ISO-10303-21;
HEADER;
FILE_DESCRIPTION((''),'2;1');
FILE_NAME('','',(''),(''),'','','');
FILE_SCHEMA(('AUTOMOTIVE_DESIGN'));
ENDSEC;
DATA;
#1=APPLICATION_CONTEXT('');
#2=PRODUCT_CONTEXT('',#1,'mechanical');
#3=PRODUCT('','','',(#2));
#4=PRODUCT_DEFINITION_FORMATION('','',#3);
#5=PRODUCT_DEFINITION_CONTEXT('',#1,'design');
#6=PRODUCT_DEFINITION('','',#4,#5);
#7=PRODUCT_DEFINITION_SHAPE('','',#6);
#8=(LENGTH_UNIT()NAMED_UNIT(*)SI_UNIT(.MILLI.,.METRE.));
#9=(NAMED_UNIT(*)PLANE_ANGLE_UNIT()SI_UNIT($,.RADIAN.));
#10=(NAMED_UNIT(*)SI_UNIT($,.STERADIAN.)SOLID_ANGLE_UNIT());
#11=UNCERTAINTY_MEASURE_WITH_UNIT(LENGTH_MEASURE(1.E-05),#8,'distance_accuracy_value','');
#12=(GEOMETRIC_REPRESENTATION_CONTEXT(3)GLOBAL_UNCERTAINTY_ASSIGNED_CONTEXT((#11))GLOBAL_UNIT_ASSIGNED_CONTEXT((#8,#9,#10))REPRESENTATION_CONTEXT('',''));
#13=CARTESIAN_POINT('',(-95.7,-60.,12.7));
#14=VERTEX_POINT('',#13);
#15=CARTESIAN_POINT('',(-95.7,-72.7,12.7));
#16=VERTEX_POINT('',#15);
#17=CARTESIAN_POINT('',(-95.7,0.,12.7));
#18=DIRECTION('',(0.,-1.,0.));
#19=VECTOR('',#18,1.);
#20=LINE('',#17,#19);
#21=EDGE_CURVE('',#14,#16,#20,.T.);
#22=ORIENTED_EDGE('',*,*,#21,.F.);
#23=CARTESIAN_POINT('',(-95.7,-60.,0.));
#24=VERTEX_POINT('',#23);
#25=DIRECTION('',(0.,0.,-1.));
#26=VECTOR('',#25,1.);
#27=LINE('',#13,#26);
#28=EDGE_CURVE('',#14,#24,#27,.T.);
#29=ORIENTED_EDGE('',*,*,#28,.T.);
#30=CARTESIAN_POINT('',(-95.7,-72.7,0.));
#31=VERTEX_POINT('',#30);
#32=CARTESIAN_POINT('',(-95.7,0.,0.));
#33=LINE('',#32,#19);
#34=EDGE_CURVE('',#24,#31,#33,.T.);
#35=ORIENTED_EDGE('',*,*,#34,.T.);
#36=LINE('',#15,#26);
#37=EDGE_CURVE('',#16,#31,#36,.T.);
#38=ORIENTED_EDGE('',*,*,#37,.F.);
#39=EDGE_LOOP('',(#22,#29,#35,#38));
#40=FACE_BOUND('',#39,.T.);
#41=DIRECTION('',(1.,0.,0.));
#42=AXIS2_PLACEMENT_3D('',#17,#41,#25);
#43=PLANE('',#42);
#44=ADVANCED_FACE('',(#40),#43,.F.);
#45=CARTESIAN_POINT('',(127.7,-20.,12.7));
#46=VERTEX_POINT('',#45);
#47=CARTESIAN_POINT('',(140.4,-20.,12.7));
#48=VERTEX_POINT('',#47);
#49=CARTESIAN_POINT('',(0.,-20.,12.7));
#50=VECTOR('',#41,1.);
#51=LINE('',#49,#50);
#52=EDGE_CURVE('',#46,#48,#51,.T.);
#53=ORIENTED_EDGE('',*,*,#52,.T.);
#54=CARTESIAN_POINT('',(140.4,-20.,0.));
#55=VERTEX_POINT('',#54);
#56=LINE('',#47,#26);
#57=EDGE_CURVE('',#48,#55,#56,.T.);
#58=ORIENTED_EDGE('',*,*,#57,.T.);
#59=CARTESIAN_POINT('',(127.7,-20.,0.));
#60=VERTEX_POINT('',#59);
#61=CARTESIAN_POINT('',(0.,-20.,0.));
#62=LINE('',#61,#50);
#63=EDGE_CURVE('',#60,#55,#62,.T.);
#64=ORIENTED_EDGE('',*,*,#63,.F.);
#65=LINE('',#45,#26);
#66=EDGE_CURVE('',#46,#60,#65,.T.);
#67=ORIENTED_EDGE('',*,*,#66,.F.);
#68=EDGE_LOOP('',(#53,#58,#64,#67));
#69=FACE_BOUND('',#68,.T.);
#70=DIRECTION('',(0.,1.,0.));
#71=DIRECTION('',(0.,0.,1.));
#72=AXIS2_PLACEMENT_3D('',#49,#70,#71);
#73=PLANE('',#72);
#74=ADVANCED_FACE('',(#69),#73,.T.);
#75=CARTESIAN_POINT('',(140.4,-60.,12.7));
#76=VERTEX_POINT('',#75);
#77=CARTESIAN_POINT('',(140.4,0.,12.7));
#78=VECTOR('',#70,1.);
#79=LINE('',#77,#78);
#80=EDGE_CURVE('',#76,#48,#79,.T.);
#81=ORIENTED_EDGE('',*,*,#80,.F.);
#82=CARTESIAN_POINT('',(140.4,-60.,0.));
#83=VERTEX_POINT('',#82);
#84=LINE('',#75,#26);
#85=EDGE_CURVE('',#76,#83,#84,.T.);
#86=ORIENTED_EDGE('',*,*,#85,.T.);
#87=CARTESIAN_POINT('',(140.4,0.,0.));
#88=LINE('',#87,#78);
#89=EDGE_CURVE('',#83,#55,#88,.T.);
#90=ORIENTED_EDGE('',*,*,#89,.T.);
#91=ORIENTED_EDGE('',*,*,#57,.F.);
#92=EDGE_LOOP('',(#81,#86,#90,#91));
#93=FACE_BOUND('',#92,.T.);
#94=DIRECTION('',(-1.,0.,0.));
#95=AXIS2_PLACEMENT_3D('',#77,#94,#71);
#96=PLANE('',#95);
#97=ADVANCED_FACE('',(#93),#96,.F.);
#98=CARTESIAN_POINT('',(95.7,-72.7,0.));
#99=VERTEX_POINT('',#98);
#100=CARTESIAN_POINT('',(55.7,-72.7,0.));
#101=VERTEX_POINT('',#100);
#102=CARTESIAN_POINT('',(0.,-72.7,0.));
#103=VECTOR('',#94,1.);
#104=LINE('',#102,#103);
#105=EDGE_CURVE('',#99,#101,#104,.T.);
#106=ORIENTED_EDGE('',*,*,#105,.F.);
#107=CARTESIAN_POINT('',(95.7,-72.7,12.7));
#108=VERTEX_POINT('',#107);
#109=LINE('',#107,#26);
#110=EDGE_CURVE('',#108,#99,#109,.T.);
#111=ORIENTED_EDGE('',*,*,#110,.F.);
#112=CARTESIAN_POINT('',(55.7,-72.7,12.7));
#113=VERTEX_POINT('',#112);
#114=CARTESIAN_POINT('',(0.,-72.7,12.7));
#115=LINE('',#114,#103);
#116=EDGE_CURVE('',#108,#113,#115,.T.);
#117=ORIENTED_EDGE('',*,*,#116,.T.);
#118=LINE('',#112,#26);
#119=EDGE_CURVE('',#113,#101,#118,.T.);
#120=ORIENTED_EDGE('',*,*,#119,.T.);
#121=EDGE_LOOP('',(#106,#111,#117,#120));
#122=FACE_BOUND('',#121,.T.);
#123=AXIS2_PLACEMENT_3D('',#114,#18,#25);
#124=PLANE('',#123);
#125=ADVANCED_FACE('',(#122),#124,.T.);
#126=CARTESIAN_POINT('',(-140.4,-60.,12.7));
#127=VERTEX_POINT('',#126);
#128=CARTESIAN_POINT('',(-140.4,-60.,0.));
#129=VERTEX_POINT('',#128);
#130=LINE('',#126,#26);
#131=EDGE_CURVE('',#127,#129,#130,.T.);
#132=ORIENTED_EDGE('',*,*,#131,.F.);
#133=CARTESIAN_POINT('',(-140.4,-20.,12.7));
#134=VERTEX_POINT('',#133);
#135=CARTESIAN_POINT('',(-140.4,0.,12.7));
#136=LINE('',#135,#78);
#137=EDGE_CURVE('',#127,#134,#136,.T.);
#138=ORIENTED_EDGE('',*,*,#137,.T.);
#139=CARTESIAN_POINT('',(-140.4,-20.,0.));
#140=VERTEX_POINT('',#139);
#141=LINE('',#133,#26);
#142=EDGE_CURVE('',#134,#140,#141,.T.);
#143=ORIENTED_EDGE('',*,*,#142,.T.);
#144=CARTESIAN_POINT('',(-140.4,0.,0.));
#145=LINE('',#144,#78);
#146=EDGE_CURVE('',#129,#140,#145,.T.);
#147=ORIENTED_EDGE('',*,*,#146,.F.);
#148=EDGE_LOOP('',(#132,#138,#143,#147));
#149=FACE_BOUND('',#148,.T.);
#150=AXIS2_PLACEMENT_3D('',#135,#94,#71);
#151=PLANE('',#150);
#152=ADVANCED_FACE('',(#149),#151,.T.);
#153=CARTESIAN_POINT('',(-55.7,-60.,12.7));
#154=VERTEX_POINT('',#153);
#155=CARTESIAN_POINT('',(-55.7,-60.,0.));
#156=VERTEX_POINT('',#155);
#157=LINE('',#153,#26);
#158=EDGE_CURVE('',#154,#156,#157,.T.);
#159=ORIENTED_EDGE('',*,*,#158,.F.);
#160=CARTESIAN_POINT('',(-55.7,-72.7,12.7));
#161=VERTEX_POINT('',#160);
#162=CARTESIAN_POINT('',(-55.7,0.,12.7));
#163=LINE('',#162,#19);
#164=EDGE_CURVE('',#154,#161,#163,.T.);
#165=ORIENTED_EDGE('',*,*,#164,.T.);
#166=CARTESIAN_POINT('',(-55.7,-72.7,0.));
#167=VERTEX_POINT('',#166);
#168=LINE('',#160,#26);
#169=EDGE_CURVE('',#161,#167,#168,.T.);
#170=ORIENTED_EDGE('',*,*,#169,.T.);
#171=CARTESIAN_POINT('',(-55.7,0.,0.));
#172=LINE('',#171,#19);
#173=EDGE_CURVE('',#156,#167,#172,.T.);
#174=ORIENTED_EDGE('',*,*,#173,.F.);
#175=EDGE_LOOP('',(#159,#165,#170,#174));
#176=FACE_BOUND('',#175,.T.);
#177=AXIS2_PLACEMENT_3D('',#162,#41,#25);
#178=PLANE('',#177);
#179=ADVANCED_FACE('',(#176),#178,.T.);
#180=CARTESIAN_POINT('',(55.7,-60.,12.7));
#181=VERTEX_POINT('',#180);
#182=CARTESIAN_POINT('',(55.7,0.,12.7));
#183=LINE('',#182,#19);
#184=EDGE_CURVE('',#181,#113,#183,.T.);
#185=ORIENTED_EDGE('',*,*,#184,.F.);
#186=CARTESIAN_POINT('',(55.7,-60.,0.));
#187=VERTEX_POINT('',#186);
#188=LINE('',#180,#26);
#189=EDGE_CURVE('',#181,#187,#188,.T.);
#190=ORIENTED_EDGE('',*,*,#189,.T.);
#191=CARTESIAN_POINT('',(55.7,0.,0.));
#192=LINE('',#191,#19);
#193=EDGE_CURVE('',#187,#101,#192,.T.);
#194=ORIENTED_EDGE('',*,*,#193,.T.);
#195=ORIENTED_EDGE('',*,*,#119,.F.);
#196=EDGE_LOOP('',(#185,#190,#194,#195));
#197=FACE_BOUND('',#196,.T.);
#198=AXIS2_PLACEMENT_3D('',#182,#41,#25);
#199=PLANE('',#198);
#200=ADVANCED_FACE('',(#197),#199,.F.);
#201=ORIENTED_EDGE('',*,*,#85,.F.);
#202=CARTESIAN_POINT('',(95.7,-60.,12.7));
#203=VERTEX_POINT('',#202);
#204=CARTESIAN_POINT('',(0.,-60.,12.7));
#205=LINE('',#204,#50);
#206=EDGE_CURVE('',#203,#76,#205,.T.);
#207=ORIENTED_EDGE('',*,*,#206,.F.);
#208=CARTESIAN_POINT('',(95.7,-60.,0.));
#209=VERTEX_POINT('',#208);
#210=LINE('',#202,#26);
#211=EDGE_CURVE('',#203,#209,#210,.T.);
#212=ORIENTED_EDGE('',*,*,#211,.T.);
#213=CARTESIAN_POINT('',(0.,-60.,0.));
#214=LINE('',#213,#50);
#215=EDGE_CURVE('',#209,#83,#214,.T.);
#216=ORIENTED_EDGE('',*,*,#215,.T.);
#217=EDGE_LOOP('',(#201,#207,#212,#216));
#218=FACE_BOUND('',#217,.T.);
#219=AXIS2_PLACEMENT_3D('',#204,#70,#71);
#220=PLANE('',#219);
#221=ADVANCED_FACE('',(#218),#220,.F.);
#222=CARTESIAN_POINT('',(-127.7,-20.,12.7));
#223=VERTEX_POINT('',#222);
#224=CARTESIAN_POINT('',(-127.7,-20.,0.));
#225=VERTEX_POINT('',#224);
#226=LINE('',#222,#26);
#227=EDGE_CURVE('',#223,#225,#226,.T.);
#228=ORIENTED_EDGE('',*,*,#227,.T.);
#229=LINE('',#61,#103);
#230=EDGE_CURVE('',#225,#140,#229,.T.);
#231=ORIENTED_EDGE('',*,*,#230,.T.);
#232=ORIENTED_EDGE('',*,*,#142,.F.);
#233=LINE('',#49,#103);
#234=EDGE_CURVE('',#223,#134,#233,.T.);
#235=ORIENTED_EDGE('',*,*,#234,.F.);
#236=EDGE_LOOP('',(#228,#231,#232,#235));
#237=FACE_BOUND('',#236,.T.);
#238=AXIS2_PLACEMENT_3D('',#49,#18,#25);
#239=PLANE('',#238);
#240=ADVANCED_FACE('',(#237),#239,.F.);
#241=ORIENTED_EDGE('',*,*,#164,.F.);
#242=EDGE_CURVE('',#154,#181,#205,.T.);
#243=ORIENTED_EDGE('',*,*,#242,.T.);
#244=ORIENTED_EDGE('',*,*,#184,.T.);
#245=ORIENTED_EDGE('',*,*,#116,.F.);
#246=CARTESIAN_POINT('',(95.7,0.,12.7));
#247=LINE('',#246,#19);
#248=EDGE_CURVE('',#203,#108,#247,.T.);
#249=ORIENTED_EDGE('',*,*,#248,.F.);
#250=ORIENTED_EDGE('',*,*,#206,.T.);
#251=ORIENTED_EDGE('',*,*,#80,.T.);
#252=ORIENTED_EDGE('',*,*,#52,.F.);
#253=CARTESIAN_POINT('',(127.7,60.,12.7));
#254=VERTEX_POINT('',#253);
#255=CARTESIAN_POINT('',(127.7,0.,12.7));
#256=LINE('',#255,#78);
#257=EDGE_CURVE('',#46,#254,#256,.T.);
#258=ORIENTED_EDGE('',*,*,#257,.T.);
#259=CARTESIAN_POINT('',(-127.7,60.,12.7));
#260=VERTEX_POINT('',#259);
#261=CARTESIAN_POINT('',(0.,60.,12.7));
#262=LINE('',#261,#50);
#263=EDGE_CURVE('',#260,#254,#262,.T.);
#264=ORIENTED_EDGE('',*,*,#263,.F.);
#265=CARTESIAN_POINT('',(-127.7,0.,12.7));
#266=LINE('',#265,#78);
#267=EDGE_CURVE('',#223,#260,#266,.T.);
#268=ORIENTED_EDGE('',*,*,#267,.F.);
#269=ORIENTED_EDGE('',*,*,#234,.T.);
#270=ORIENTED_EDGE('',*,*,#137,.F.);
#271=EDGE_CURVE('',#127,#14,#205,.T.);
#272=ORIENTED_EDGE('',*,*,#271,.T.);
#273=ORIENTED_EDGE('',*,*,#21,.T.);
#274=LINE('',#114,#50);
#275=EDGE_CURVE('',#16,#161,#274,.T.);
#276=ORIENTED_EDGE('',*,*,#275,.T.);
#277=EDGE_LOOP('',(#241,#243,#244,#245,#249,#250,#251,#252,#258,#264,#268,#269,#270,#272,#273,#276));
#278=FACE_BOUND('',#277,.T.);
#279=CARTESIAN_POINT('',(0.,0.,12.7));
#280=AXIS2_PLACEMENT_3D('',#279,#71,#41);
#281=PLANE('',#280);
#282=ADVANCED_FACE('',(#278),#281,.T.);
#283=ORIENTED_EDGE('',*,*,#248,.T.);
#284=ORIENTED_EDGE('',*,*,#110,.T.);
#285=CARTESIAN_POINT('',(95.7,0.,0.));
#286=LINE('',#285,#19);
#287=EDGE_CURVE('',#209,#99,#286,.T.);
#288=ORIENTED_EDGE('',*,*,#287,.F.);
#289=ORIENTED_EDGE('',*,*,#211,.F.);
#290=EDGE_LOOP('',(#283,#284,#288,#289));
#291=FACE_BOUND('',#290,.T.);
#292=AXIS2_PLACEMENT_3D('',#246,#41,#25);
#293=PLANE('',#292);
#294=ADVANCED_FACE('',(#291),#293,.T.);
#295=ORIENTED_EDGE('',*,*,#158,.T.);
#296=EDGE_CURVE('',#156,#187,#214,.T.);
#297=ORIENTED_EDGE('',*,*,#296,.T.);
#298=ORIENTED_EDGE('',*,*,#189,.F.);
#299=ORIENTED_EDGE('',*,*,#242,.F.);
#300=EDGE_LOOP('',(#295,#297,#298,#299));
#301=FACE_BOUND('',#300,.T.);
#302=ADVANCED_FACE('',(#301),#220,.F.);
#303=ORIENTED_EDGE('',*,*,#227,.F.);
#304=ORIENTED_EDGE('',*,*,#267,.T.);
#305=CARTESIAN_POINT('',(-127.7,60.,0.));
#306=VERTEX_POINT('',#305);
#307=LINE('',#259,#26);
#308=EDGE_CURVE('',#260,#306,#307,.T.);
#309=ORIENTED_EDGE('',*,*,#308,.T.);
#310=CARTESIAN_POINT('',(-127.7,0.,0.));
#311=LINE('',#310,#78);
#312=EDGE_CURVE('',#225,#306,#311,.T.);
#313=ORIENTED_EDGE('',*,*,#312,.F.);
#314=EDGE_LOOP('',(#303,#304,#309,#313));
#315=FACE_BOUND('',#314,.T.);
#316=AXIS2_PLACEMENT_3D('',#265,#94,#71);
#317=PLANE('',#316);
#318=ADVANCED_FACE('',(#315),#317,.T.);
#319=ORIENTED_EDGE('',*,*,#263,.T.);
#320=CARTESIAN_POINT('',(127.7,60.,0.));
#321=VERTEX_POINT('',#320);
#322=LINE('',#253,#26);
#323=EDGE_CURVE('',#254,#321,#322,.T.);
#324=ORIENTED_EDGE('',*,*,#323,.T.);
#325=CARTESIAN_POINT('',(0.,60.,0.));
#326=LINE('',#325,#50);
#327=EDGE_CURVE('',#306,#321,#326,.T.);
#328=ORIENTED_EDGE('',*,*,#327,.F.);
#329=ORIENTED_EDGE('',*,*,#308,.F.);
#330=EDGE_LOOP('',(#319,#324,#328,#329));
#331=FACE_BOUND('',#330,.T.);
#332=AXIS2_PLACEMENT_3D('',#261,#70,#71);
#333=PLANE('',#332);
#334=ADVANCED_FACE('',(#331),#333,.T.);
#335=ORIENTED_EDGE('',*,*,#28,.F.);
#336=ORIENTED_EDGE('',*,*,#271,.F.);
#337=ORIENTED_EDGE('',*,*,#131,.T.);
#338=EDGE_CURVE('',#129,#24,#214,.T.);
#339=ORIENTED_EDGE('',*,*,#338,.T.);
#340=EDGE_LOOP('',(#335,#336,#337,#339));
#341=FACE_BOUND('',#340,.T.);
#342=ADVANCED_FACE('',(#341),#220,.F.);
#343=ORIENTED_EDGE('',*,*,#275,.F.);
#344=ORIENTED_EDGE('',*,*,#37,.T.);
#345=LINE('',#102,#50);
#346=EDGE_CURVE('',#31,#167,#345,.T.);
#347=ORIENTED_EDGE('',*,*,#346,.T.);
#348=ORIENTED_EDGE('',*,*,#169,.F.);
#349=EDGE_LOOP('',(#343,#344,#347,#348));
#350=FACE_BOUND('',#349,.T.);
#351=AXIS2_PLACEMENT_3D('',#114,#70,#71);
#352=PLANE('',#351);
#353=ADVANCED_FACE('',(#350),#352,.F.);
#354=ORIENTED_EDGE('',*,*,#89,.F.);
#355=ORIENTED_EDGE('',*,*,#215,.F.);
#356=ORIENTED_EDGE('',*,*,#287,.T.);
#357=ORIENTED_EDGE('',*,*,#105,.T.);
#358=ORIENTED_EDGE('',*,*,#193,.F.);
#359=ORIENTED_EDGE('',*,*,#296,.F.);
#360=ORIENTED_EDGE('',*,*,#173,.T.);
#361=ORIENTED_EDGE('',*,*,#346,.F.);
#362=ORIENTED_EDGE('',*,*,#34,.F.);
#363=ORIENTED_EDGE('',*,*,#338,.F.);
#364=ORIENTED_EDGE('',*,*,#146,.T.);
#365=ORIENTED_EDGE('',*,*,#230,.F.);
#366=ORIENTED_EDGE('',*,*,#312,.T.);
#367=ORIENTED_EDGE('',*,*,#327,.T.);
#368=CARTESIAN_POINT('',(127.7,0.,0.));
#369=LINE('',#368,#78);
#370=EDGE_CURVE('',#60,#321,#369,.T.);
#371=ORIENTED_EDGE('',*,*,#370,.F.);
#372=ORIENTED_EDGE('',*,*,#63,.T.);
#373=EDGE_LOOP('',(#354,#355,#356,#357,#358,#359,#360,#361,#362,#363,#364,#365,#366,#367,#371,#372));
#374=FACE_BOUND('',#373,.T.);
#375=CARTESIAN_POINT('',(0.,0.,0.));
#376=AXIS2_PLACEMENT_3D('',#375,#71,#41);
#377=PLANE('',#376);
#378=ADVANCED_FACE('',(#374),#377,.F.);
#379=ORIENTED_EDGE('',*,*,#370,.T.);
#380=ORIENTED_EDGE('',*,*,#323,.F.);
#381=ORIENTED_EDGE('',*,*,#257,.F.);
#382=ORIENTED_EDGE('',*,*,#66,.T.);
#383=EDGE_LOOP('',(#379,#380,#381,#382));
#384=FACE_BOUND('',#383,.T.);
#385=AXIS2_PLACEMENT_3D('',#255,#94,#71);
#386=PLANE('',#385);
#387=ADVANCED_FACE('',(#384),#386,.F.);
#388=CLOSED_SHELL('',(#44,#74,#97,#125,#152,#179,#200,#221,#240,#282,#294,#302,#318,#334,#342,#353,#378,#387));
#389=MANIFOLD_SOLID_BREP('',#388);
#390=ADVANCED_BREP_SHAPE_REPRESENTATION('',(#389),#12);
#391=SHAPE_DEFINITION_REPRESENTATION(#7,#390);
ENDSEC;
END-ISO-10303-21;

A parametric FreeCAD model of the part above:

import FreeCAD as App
import Part
import Sketcher
Q = App.Units.Quantity

doc = App.newDocument("Part")
params = doc.addObject("Spreadsheet::Sheet", "Params")
for row, (alias, value) in enumerate([
    ("sketch1_width", "40 mm"),
    ("sketch1_height", "80 mm"),
    ("sketch1_width2", "12.7 mm"),
    ("sketch1_width3", "44.7 mm"),
    ("sketch1_width4", "111.4 mm"),
    ("pad1_length", "12.7 mm"),
], start=1):
    params.set(f"A{row}", alias)
    params.set(f"B{row}", "=" + value)
    params.setAlias(f"B{row}", alias)

body = doc.addObject("PartDesign::Body", "Body")

# Sketch on XY plane
sketch1 = doc.addObject("Sketcher::SketchObject", "Sketch")
body.addObject(sketch1)
sketch1.AttachmentSupport = (doc.XY_Plane, [""])
sketch1.MapMode = "FlatFace"
sketch1.addGeometry([
    Part.LineSegment(App.Vector(-128, 60, 0), App.Vector(-128, -20, 0)),  # 0
    Part.LineSegment(App.Vector(-128, -20, 0), App.Vector(-140, -20, 0)),  # 1
    Part.LineSegment(App.Vector(-140, -20, 0), App.Vector(-140, -60, 0)),  # 2
    Part.LineSegment(App.Vector(-140, -60, 0), App.Vector(-96, -60, 0)),  # 3
    Part.LineSegment(App.Vector(-96, -60, 0), App.Vector(-96, -73, 0)),  # 4
    Part.LineSegment(App.Vector(-96, -73, 0), App.Vector(-56, -73, 0)),  # 5
    Part.LineSegment(App.Vector(-56, -73, 0), App.Vector(-56, -60, 0)),  # 6
    Part.LineSegment(App.Vector(-56, -60, 0), App.Vector(56, -60, 0)),  # 7
    Part.LineSegment(App.Vector(56, -60, 0), App.Vector(56, -73, 0)),  # 8
    Part.LineSegment(App.Vector(56, -73, 0), App.Vector(96, -73, 0)),  # 9
    Part.LineSegment(App.Vector(96, -73, 0), App.Vector(96, -60, 0)),  # 10
    Part.LineSegment(App.Vector(96, -60, 0), App.Vector(140, -60, 0)),  # 11
    Part.LineSegment(App.Vector(140, -60, 0), App.Vector(140, -20, 0)),  # 12
    Part.LineSegment(App.Vector(140, -20, 0), App.Vector(128, -20, 0)),  # 13
    Part.LineSegment(App.Vector(128, -20, 0), App.Vector(128, 60, 0)),  # 14
    Part.LineSegment(App.Vector(128, 60, 0), App.Vector(-128, 60, 0)),  # 15
], False)
sketch1.addConstraint([
    Sketcher.Constraint("Coincident", 0, 2, 1, 1),
    Sketcher.Constraint("Coincident", 1, 2, 2, 1),
    Sketcher.Constraint("Coincident", 2, 2, 3, 1),
    Sketcher.Constraint("Coincident", 3, 2, 4, 1),
    Sketcher.Constraint("Coincident", 4, 2, 5, 1),
    Sketcher.Constraint("Coincident", 5, 2, 6, 1),
    Sketcher.Constraint("Coincident", 6, 2, 7, 1),
    Sketcher.Constraint("Coincident", 7, 2, 8, 1),
    Sketcher.Constraint("Coincident", 8, 2, 9, 1),
    Sketcher.Constraint("Coincident", 9, 2, 10, 1),
    Sketcher.Constraint("Coincident", 10, 2, 11, 1),
    Sketcher.Constraint("Coincident", 11, 2, 12, 1),
    Sketcher.Constraint("Coincident", 12, 2, 13, 1),
    Sketcher.Constraint("Coincident", 13, 2, 14, 1),
    Sketcher.Constraint("Coincident", 14, 2, 15, 1),
    Sketcher.Constraint("Coincident", 15, 2, 0, 1),
    Sketcher.Constraint("Vertical", 0),
    Sketcher.Constraint("Horizontal", 1),
    Sketcher.Constraint("Vertical", 2),
    Sketcher.Constraint("Horizontal", 3),
    Sketcher.Constraint("Vertical", 4),
    Sketcher.Constraint("Horizontal", 5),
    Sketcher.Constraint("Vertical", 6),
    Sketcher.Constraint("Horizontal", 7),
    Sketcher.Constraint("Vertical", 8),
    Sketcher.Constraint("Horizontal", 9),
    Sketcher.Constraint("Vertical", 10),
    Sketcher.Constraint("Horizontal", 11),
    Sketcher.Constraint("Vertical", 12),
    Sketcher.Constraint("Horizontal", 13),
    Sketcher.Constraint("Vertical", 14),
    Sketcher.Constraint("Horizontal", 15),
    Sketcher.Constraint("Symmetric", 5, 2, 8, 2, -2),
    Sketcher.Constraint("Symmetric", 3, 2, 10, 2, -2),
    Sketcher.Constraint("Symmetric", 1, 2, 12, 2, -2),
    Sketcher.Constraint("Horizontal", 3, 2, 6, 2),
    Sketcher.Constraint("Equal", 1, 13),
    Sketcher.Constraint("Equal", 9, 2),
    Sketcher.Constraint("Equal", 13, 4),
    Sketcher.Constraint("DistanceX", 5, 1, 5, 2, Q("40 mm")),
    Sketcher.Constraint("DistanceY", 0, 2, 0, 1, Q("80 mm")),
    Sketcher.Constraint("DistanceX", 1, 2, 1, 1, Q("12.7 mm")),
    Sketcher.Constraint("DistanceX", 3, 1, 3, 2, Q("44.7 mm")),
    Sketcher.Constraint("DistanceX", 7, 1, 7, 2, Q("111.4 mm")),
    Sketcher.Constraint("DistanceY", 0, 2, -1, 1, Q("20 mm")),
])
sketch1.setExpression("Constraints[39]", "Params.sketch1_width")
sketch1.setExpression("Constraints[40]", "Params.sketch1_height")
sketch1.setExpression("Constraints[41]", "Params.sketch1_width2")
sketch1.setExpression("Constraints[42]", "Params.sketch1_width3")
sketch1.setExpression("Constraints[43]", "Params.sketch1_width4")
pad1 = doc.addObject("PartDesign::Pad", "Pad")
body.addObject(pad1)
pad1.Profile = sketch1
pad1.setExpression("Length", "Params.pad1_length")

doc.recompute()
